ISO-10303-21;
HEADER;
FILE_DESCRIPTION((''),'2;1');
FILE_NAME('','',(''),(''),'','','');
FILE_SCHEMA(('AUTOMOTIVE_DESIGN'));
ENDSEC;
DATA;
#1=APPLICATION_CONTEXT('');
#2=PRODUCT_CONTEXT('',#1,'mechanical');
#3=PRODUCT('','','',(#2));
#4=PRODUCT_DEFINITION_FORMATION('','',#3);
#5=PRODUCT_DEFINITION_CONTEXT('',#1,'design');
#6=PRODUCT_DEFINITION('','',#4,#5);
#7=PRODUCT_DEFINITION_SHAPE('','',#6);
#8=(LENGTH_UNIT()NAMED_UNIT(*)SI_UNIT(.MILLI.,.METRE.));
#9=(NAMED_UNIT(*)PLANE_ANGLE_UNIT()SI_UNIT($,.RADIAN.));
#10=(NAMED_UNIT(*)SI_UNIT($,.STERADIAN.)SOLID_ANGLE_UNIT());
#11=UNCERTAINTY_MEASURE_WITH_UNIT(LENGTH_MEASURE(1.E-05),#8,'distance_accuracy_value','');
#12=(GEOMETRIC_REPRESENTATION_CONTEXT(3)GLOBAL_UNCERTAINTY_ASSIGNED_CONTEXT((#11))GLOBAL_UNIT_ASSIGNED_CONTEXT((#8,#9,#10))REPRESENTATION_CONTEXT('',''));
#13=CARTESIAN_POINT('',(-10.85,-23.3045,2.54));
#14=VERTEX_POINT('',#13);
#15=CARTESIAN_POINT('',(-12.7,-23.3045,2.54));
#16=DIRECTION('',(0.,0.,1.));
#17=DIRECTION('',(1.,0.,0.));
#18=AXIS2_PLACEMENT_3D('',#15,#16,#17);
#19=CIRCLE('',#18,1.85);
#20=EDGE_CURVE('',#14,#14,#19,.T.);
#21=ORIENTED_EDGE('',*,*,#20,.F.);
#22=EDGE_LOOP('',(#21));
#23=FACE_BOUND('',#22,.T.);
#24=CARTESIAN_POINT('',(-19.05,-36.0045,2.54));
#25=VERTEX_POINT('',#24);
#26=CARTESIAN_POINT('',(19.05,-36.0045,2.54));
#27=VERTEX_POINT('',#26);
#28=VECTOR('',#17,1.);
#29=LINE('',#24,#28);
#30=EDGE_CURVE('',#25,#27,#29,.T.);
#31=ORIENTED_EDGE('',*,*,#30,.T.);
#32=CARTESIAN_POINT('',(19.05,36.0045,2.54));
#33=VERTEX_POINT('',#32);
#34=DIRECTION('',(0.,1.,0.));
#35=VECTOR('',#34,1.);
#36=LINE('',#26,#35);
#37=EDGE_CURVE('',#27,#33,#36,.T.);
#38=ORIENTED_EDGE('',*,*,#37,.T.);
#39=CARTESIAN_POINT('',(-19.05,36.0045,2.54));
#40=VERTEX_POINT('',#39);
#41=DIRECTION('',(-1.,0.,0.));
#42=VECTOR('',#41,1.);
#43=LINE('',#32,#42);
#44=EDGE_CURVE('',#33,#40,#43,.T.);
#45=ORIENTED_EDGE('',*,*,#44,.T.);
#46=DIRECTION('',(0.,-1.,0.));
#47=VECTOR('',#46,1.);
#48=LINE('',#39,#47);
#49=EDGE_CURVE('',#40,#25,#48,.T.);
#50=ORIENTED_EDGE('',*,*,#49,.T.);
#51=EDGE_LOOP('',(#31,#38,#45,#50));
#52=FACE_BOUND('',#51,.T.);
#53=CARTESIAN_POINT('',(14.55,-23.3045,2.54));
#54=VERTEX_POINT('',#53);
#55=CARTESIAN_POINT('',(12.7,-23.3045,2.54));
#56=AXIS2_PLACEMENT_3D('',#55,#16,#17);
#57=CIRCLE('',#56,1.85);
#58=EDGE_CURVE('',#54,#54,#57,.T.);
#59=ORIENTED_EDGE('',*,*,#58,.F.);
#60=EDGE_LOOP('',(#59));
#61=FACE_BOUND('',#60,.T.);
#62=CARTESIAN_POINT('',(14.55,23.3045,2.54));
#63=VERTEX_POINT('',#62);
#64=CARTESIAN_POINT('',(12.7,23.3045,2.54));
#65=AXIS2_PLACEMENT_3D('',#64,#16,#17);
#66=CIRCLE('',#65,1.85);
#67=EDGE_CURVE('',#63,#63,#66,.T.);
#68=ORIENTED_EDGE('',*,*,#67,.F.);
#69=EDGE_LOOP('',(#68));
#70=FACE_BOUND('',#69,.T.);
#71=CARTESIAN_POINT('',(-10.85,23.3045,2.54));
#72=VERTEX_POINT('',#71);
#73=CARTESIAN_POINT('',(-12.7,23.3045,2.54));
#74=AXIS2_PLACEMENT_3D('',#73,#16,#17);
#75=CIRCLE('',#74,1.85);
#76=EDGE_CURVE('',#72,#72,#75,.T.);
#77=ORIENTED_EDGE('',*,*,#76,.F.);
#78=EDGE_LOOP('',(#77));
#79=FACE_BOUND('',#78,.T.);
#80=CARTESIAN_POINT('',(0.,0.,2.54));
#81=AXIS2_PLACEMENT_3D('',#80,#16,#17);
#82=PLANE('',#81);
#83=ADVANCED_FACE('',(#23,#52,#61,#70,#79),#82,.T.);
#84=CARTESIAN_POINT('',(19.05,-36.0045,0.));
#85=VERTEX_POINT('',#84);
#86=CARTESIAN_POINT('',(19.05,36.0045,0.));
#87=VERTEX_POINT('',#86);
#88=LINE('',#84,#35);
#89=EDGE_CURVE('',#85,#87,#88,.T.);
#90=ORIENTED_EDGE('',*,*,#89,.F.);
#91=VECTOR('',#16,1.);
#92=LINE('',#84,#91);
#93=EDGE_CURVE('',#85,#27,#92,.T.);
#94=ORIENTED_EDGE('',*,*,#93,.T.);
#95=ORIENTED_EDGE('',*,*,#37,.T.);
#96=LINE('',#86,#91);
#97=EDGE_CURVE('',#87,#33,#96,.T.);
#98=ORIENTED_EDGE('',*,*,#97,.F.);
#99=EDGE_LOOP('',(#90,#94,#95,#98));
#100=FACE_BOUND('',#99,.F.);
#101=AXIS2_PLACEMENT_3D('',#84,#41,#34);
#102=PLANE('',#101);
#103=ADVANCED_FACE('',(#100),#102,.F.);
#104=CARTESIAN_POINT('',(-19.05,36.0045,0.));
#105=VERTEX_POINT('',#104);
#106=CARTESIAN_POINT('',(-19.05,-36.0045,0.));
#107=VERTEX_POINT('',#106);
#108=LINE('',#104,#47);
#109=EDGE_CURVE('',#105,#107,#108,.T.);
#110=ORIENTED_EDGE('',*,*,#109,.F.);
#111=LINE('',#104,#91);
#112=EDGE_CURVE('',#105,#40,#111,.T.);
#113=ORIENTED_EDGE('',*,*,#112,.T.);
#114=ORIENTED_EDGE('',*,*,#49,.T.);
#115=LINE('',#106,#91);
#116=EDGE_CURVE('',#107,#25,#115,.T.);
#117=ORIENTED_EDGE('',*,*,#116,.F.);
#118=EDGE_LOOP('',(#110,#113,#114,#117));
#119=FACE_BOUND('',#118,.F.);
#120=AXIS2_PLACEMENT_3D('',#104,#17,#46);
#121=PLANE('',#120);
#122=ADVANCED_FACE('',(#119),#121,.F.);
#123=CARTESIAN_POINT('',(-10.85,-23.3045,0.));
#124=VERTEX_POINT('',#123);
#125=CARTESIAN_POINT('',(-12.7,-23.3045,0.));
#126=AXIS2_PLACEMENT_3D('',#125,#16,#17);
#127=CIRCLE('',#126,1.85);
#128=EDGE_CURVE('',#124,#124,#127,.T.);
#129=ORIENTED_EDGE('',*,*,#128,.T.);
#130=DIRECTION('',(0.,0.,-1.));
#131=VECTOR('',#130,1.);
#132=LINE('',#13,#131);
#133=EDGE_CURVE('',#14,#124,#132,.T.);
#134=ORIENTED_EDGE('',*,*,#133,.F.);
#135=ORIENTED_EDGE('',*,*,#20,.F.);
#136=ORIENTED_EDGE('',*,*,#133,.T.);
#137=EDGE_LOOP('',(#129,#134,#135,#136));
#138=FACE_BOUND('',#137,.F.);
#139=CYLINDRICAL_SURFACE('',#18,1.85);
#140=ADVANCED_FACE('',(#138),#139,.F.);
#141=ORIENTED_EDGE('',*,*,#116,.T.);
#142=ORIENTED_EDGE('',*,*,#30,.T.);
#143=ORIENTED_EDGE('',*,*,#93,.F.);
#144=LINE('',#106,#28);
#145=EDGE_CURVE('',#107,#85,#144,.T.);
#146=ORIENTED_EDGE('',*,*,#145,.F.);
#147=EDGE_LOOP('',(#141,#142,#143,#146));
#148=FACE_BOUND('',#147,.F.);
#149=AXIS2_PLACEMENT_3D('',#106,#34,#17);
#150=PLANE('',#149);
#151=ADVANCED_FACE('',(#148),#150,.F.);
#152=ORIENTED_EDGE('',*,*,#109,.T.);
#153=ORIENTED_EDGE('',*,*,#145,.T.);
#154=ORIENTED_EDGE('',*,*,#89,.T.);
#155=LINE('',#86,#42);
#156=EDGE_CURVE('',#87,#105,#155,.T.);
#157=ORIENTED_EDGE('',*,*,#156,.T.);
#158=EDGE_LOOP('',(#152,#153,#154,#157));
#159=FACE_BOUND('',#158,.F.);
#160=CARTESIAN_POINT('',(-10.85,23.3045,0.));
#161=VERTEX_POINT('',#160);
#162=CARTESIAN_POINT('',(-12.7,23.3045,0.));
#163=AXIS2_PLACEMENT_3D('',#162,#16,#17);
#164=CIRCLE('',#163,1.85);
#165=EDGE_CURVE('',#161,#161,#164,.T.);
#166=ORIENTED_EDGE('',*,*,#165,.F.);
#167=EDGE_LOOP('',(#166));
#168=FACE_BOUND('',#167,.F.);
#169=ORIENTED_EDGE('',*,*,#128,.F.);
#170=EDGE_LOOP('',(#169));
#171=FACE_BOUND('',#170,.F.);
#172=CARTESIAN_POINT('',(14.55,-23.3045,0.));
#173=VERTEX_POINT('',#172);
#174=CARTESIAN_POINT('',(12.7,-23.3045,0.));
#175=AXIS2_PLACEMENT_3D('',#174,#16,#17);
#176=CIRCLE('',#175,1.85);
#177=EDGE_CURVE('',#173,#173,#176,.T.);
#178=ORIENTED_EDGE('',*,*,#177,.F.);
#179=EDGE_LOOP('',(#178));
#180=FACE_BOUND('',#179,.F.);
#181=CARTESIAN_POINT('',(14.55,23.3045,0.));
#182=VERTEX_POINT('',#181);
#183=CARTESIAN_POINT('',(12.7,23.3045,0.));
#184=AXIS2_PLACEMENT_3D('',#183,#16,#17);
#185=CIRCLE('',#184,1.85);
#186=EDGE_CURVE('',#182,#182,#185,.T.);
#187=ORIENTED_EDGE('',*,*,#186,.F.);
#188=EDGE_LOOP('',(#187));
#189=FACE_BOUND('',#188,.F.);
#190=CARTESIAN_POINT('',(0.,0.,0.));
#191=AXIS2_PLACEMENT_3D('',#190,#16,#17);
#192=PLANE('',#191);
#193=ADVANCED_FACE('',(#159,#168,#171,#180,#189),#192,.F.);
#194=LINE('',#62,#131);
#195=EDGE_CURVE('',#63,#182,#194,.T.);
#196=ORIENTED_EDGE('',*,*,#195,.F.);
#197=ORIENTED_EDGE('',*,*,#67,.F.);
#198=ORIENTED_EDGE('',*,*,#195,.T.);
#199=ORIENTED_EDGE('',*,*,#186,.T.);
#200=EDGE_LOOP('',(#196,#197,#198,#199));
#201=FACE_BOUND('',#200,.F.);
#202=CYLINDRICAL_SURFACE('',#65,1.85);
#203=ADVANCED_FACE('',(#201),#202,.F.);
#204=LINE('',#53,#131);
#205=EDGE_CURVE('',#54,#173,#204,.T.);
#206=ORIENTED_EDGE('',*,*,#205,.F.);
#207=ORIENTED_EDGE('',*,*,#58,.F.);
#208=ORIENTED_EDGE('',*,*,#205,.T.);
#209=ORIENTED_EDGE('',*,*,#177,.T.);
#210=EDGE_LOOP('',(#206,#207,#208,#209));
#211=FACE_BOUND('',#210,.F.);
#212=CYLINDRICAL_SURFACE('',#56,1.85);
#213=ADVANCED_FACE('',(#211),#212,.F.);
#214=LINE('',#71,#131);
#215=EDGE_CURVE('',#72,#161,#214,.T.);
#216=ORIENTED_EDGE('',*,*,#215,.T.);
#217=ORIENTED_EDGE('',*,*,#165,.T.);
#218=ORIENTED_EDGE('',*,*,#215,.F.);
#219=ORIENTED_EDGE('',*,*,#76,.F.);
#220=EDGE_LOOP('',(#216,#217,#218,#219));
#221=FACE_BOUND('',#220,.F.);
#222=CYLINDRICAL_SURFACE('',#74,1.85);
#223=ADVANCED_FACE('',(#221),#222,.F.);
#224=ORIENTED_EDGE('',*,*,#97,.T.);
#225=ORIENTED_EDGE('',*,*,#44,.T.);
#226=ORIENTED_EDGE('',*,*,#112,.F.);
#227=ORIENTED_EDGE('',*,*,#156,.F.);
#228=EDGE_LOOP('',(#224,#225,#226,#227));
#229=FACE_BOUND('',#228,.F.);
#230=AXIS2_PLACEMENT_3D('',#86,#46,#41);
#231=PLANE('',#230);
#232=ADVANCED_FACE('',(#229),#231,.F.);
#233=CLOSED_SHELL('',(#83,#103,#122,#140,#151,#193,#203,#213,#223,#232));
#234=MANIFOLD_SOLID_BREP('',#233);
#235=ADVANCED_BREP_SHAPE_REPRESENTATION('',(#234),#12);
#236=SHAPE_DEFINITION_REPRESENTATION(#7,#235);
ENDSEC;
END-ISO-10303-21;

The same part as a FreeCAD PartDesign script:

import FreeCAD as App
import Part
import Sketcher
Q = App.Units.Quantity


def add_polygon(sketch, points):
    """Adds a closed chain of lines whose ends are joined by coincident constraints."""
    first, n = sketch.GeometryCount, len(points)
    for a, b in zip(points, points[1:] + points[:1]):
        sketch.addGeometry(Part.LineSegment(App.Vector(*a, 0), App.Vector(*b, 0)), False)
    for i in range(n):
        sketch.addConstraint(Sketcher.Constraint("Coincident", first + i, 2, first + (i + 1) % n, 1))

doc = App.newDocument("Part")
body = doc.addObject("PartDesign::Body", "Body")

sketch1 = body.newObject("Sketcher::SketchObject", "Sketch")
sketch1.AttachmentSupport = (doc.getObject("XY_Plane"), [""])
sketch1.MapMode = "FlatFace"
add_polygon(sketch1, [(-19, 36), (-19, -36), (19, -36), (19, 36)])
sketch1.addConstraint(Sketcher.Constraint("Vertical", 0))
sketch1.addConstraint(Sketcher.Constraint("Horizontal", 1))
sketch1.addConstraint(Sketcher.Constraint("Vertical", 2))
sketch1.addConstraint(Sketcher.Constraint("Horizontal", 3))
sketch1.addConstraint(Sketcher.Constraint("Symmetric", 0, 2, 2, 2, -1, 1))
sketch1.addConstraint(Sketcher.Constraint("DistanceX", 1, 1, 1, 2, Q("1.5 in")))
sketch1.addConstraint(Sketcher.Constraint("DistanceY", 0, 2, 0, 1, Q("2.835 in")))
pad1 = body.newObject("PartDesign::Pad", "Pad")
pad1.Profile = sketch1
pad1.Length = Q("0.1 in")

sketch2 = body.newObject("Sketcher::SketchObject", "Sketch001")
sketch2.AttachmentSupport = (doc.getObject("XY_Plane"), [""])
sketch2.MapMode = "FlatFace"
sketch2.AttachmentOffset = App.Placement(App.Vector(0, 0, 0.1 * 25.4), App.Rotation())
sketch2.addGeometry(Part.Circle(App.Vector(-12.7, 23.3, 0), App.Vector(0, 0, 1), 1.9), False)
sketch2.addGeometry(Part.Circle(App.Vector(12.7, 23.3, 0), App.Vector(0, 0, 1), 1.9), False)
sketch2.addGeometry(Part.Circle(App.Vector(-12.7, -23.3, 0), App.Vector(0, 0, 1), 1.9), False)
sketch2.addGeometry(Part.Circle(App.Vector(12.7, -23.3, 0), App.Vector(0, 0, 1), 1.9), False)
sketch2.addConstraint(Sketcher.Constraint("Equal", 0, 1))
sketch2.addConstraint(Sketcher.Constraint("Equal", 1, 2))
sketch2.addConstraint(Sketcher.Constraint("Equal", 2, 3))
sketch2.addConstraint(Sketcher.Constraint("Symmetric", 1, 3, 2, 3, -1, 1))
sketch2.addConstraint(Sketcher.Constraint("Symmetric", 0, 3, 3, 3, -1, 1))
sketch2.addConstraint(Sketcher.Constraint("Symmetric", 0, 3, 1, 3, -2))
sketch2.addConstraint(Sketcher.Constraint("DistanceX", 0, 3, 1, 3, Q("1 in")))
sketch2.addConstraint(Sketcher.Constraint("Diameter", 0, Q("3.7 mm")))
sketch2.addConstraint(Sketcher.Constraint("DistanceY", 2, 3, 0, 3, Q("1.835 in")))
pocket1 = body.newObject("PartDesign::Pocket", "Pocket")
pocket1.Profile = sketch2
pocket1.Length = Q("0.1 in")

doc.recompute()
